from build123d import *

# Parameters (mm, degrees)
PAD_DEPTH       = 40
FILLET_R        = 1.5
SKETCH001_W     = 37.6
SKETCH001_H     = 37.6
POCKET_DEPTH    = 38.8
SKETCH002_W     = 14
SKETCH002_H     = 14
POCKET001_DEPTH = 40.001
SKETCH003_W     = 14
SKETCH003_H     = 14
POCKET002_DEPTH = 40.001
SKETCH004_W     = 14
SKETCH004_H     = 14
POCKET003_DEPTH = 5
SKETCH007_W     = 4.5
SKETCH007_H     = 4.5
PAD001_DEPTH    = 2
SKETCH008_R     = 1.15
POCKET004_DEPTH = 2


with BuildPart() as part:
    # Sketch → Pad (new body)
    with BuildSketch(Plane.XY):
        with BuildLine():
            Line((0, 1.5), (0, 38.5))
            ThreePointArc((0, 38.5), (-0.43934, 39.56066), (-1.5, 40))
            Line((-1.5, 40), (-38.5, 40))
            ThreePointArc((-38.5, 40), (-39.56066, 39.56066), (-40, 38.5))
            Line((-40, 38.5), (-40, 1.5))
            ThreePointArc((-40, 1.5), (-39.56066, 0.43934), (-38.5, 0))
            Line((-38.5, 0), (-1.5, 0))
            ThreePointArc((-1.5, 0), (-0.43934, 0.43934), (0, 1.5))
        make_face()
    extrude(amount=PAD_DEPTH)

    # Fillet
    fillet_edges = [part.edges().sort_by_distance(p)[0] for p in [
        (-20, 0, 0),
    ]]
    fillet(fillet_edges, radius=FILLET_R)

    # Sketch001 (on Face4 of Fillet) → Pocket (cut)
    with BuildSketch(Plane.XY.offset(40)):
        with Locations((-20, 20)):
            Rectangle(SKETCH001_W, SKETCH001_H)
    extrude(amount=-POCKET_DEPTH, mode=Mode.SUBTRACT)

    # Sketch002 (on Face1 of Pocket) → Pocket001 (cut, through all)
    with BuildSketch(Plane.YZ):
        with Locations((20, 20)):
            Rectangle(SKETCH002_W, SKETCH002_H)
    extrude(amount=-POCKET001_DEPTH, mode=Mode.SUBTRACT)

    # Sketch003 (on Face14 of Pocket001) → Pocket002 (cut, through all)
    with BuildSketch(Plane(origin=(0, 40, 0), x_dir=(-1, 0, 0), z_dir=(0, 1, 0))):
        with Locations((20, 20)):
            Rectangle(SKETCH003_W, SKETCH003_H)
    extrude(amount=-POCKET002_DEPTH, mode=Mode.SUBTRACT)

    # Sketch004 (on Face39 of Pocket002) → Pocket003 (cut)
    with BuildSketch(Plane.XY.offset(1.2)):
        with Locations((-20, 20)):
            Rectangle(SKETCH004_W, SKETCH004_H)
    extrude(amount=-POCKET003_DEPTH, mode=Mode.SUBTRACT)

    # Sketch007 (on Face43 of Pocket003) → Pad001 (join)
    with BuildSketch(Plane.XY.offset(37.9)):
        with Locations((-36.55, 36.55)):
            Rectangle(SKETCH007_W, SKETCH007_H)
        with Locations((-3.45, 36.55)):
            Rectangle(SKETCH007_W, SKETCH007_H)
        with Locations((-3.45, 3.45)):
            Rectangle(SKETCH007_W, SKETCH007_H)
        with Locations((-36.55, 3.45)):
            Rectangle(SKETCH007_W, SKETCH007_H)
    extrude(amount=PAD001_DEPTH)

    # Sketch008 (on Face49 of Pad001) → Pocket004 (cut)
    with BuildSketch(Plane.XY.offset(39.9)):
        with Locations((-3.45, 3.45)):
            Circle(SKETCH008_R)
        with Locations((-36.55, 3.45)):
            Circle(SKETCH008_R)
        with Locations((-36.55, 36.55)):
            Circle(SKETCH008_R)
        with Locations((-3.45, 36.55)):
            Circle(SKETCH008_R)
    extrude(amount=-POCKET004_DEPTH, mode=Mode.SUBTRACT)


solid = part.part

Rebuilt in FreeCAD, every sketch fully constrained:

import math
import FreeCAD as App
import Part
import Sketcher

V = App.Vector
Q = App.Units.Quantity


def edges_at(feature, points):
    """Names of the edges that pass closest to the given points."""
    edges = feature.Shape.Edges
    near = lambda p: min(range(len(edges)), key=lambda i: edges[i].distToShape(Part.Vertex(*p))[0])
    return sorted({f"Edge{near(p) + 1}" for p in points})


def add_polygon(sketch, points):
    """Adds a closed chain of lines whose ends are joined by coincident constraints."""
    first, n = sketch.GeometryCount, len(points)
    for a, b in zip(points, points[1:] + points[:1]):
        sketch.addGeometry(Part.LineSegment(App.Vector(*a, 0), App.Vector(*b, 0)), False)
    for i in range(n):
        sketch.addConstraint(Sketcher.Constraint("Coincident", first + i, 2, first + (i + 1) % n, 1))

doc = App.newDocument("Part")
body = doc.addObject("PartDesign::Body", "Body")

# Sketch on XY plane
sketch1 = body.newObject("Sketcher::SketchObject", "Sketch")
sketch1.AttachmentSupport = (doc.getObject("XY_Plane"), [""])
sketch1.MapMode = "FlatFace"
sketch1.addGeometry(Part.LineSegment(V(0, 1.5, 0), V(0, 38.5, 0)), False)
sketch1.addGeometry(Part.ArcOfCircle(Part.Circle(V(-1.5, 38.5, 0), V(0, 0, 1), 1.5), math.radians(0), math.radians(90)), False)
sketch1.addGeometry(Part.LineSegment(V(-1.5, 40, 0), V(-38.5, 40, 0)), False)
sketch1.addGeometry(Part.ArcOfCircle(Part.Circle(V(-38.5, 38.5, 0), V(0, 0, 1), 1.5), math.radians(90), math.radians(180)), False)
sketch1.addGeometry(Part.LineSegment(V(-40, 38.5, 0), V(-40, 1.5, 0)), False)
sketch1.addGeometry(Part.ArcOfCircle(Part.Circle(V(-38.5, 1.5, 0), V(0, 0, 1), 1.5), math.radians(-180), math.radians(-90)), False)
sketch1.addGeometry(Part.LineSegment(V(-38.5, 0, 0), V(-1.5, 0, 0)), False)
sketch1.addGeometry(Part.ArcOfCircle(Part.Circle(V(-1.5, 1.5, 0), V(0, 0, 1), 1.5), math.radians(-90), math.radians(0)), False)
sketch1.addConstraint(Sketcher.Constraint("Tangent", 0, 2, 1, 1))
sketch1.addConstraint(Sketcher.Constraint("Tangent", 1, 2, 2, 1))
sketch1.addConstraint(Sketcher.Constraint("Tangent", 2, 2, 3, 1))
sketch1.addConstraint(Sketcher.Constraint("Tangent", 3, 2, 4, 1))
sketch1.addConstraint(Sketcher.Constraint("Tangent", 4, 2, 5, 1))
sketch1.addConstraint(Sketcher.Constraint("Tangent", 5, 2, 6, 1))
sketch1.addConstraint(Sketcher.Constraint("Tangent", 6, 2, 7, 1))
sketch1.addConstraint(Sketcher.Constraint("Tangent", 7, 2, 0, 1))
sketch1.addConstraint(Sketcher.Constraint("Vertical", 0))
sketch1.addConstraint(Sketcher.Constraint("Horizontal", 2))
sketch1.addConstraint(Sketcher.Constraint("Vertical", 4))
sketch1.addConstraint(Sketcher.Constraint("Horizontal", 6))
sketch1.addConstraint(Sketcher.Constraint("Equal", 1, 3))
sketch1.addConstraint(Sketcher.Constraint("Equal", 3, 5))
sketch1.addConstraint(Sketcher.Constraint("Equal", 5, 7))
sketch1.addConstraint(Sketcher.Constraint("PointOnObject", 0, 2, -2))
sketch1.addConstraint(Sketcher.Constraint("PointOnObject", 5, 2, -1))
sketch1.addConstraint(Sketcher.Constraint("Equal", 6, 0))
sketch1.addConstraint(Sketcher.Constraint("Radius", 1, Q("1.500001 mm")))
sketch1.addConstraint(Sketcher.Constraint("DistanceX", 2, 2, 2, 1, Q("37 mm")))
pad1 = body.newObject("PartDesign::Pad", "Pad")
pad1.Profile = sketch1
pad1.Length = 40
doc.recompute()

fillet = body.newObject("PartDesign::Fillet", "Fillet")
fillet.Base = (pad1, edges_at(pad1, [(-20, 0, 0)]))
fillet.Radius = 1.5

# Sketch on XY plane
sketch2 = body.newObject("Sketcher::SketchObject", "Sketch001")
sketch2.AttachmentSupport = (doc.getObject("XY_Plane"), [""])
sketch2.MapMode = "FlatFace"
sketch2.AttachmentOffset = App.Placement(V(0, 0, 40), App.Rotation())
add_polygon(sketch2, [(-39, 39), (-39, 1), (-1, 1), (-1, 39)])  # lines 0-3
sketch2.addConstraint(Sketcher.Constraint("Vertical", 0))
sketch2.addConstraint(Sketcher.Constraint("Horizontal", 1))
sketch2.addConstraint(Sketcher.Constraint("Vertical", 2))
sketch2.addConstraint(Sketcher.Constraint("Horizontal", 3))
sketch2.addConstraint(Sketcher.Constraint("Equal", 3, 0))
sketch2.addConstraint(Sketcher.Constraint("DistanceX", 1, 1, 1, 2, Q("37.6 mm")))
sketch2.addConstraint(Sketcher.Constraint("DistanceX", 0, 2, -1, 1, Q("38.8 mm")))
sketch2.addConstraint(Sketcher.Constraint("DistanceY", -1, 1, 0, 2, Q("1.2 mm")))
pocket1 = body.newObject("PartDesign::Pocket", "Pocket")
pocket1.Profile = sketch2
pocket1.Length = 38.8

# Sketch on YZ plane
sketch3 = body.newObject("Sketcher::SketchObject", "Sketch002")
sketch3.AttachmentSupport = (doc.getObject("YZ_Plane"), [""])
sketch3.MapMode = "FlatFace"
add_polygon(sketch3, [(13, 27), (13, 13), (27, 13), (27, 27)])  # lines 0-3
sketch3.addConstraint(Sketcher.Constraint("Vertical", 0))
sketch3.addConstraint(Sketcher.Constraint("Horizontal", 1))
sketch3.addConstraint(Sketcher.Constraint("Vertical", 2))
sketch3.addConstraint(Sketcher.Constraint("Horizontal", 3))
sketch3.addConstraint(Sketcher.Constraint("Equal", 3, 0))
sketch3.addConstraint(Sketcher.Constraint("DistanceX", 1, 1, 1, 2, Q("14 mm")))
sketch3.addConstraint(Sketcher.Constraint("DistanceX", -1, 1, 0, 2, Q("13 mm")))
sketch3.addConstraint(Sketcher.Constraint("DistanceY", -1, 1, 0, 2, Q("13 mm")))
pocket2 = body.newObject("PartDesign::Pocket", "Pocket001")
pocket2.Profile = sketch3
pocket2.Type = "ThroughAll"

# Sketch on XZ plane
sketch4 = body.newObject("Sketcher::SketchObject", "Sketch003")
sketch4.AttachmentSupport = (doc.getObject("XZ_Plane"), [""])
sketch4.MapMode = "FlatFace"
sketch4.AttachmentOffset = App.Placement(V(0, 0, -40), App.Rotation())
add_polygon(sketch4, [(-13, 27), (-13, 13), (-27, 13), (-27, 27)])  # lines 0-3
sketch4.addConstraint(Sketcher.Constraint("Vertical", 0))
sketch4.addConstraint(Sketcher.Constraint("Horizontal", 1))
sketch4.addConstraint(Sketcher.Constraint("Vertical", 2))
sketch4.addConstraint(Sketcher.Constraint("Horizontal", 3))
sketch4.addConstraint(Sketcher.Constraint("Equal", 3, 0))
sketch4.addConstraint(Sketcher.Constraint("DistanceX", 1, 2, 1, 1, Q("14 mm")))
sketch4.addConstraint(Sketcher.Constraint("DistanceX", 0, 2, -1, 1, Q("13 mm")))
sketch4.addConstraint(Sketcher.Constraint("DistanceY", -1, 1, 0, 2, Q("13 mm")))
pocket3 = body.newObject("PartDesign::Pocket", "Pocket002")
pocket3.Profile = sketch4
pocket3.Type = "ThroughAll"
pocket3.Reversed = True

# Sketch on XY plane
sketch5 = body.newObject("Sketcher::SketchObject", "Sketch004")
sketch5.AttachmentSupport = (doc.getObject("XY_Plane"), [""])
sketch5.MapMode = "FlatFace"
sketch5.AttachmentOffset = App.Placement(V(0, 0, 1.2), App.Rotation())
add_polygon(sketch5, [(-27, 27), (-27, 13), (-13, 13), (-13, 27)])  # lines 0-3
sketch5.addConstraint(Sketcher.Constraint("Vertical", 0))
sketch5.addConstraint(Sketcher.Constraint("Horizontal", 1))
sketch5.addConstraint(Sketcher.Constraint("Vertical", 2))
sketch5.addConstraint(Sketcher.Constraint("Horizontal", 3))
sketch5.addConstraint(Sketcher.Constraint("Equal", 3, 0))
sketch5.addConstraint(Sketcher.Constraint("DistanceX", 1, 1, 1, 2, Q("14 mm")))
sketch5.addConstraint(Sketcher.Constraint("DistanceX", 0, 2, -1, 1, Q("27 mm")))
sketch5.addConstraint(Sketcher.Constraint("DistanceY", -1, 1, 0, 2, Q("13 mm")))
pocket4 = body.newObject("PartDesign::Pocket", "Pocket003")
pocket4.Profile = sketch5
pocket4.Length = 5

# Sketch on XY plane
sketch6 = body.newObject("Sketcher::SketchObject", "Sketch005")
sketch6.AttachmentSupport = (doc.getObject("XY_Plane"), [""])
sketch6.MapMode = "FlatFace"
sketch6.AttachmentOffset = App.Placement(V(0, 0, 37.9), App.Rotation())
add_polygon(sketch6, [(-38.8, 38.8), (-38.8, 34.3), (-34.3, 34.3), (-34.3, 38.8)])  # lines 0-3
add_polygon(sketch6, [(-5.7, 38.8), (-5.7, 34.3), (-1.2, 34.3), (-1.2, 38.8)])  # lines 4-7
add_polygon(sketch6, [(-5.7, 5.7), (-5.7, 1.2), (-1.2, 1.2), (-1.2, 5.7)])  # lines 8-11
add_polygon(sketch6, [(-38.8, 5.7), (-38.8, 1.2), (-34.3, 1.2), (-34.3, 5.7)])  # lines 12-15
sketch6.addConstraint(Sketcher.Constraint("Vertical", 0))
sketch6.addConstraint(Sketcher.Constraint("Horizontal", 1))
sketch6.addConstraint(Sketcher.Constraint("Vertical", 2))
sketch6.addConstraint(Sketcher.Constraint("Horizontal", 3))
sketch6.addConstraint(Sketcher.Constraint("Vertical", 4))
sketch6.addConstraint(Sketcher.Constraint("Horizontal", 5))
sketch6.addConstraint(Sketcher.Constraint("Vertical", 6))
sketch6.addConstraint(Sketcher.Constraint("Horizontal", 7))
sketch6.addConstraint(Sketcher.Constraint("Vertical", 8))
sketch6.addConstraint(Sketcher.Constraint("Horizontal", 9))
sketch6.addConstraint(Sketcher.Constraint("Vertical", 10))
sketch6.addConstraint(Sketcher.Constraint("Horizontal", 11))
sketch6.addConstraint(Sketcher.Constraint("Vertical", 12))
sketch6.addConstraint(Sketcher.Constraint("Horizontal", 13))
sketch6.addConstraint(Sketcher.Constraint("Vertical", 14))
sketch6.addConstraint(Sketcher.Constraint("Horizontal", 15))
sketch6.addConstraint(Sketcher.Constraint("Horizontal", 1, 2, 4, 2))
sketch6.addConstraint(Sketcher.Constraint("Horizontal", 3, 2, 6, 2))
sketch6.addConstraint(Sketcher.Constraint("Horizontal", 9, 2, 12, 2))
sketch6.addConstraint(Sketcher.Constraint("Horizontal", 11, 2, 14, 2))
sketch6.addConstraint(Sketcher.Constraint("Vertical", 7, 2, 8, 2))
sketch6.addConstraint(Sketcher.Constraint("Vertical", 6, 2, 9, 2))
sketch6.addConstraint(Sketcher.Constraint("Vertical", 3, 2, 12, 2))
sketch6.addConstraint(Sketcher.Constraint("Vertical", 2, 2, 13, 2))
sketch6.addConstraint(Sketcher.Constraint("Equal", 3, 5))
sketch6.addConstraint(Sketcher.Constraint("Equal", 15, 0))
sketch6.addConstraint(Sketcher.Constraint("Equal", 6, 8))
sketch6.addConstraint(Sketcher.Constraint("DistanceX", 1, 1, 1, 2, Q("4.5 mm")))
sketch6.addConstraint(Sketcher.Constraint("DistanceX", 0, 2, -1, 1, Q("38.8 mm")))
sketch6.addConstraint(Sketcher.Constraint("DistanceY", -1, 1, 0, 2, Q("34.3 mm")))
sketch6.addConstraint(Sketcher.Constraint("DistanceX", 4, 2, -1, 1, Q("5.7 mm")))
sketch6.addConstraint(Sketcher.Constraint("DistanceY", -1, 1, 8, 2, Q("1.2 mm")))
pad2 = body.newObject("PartDesign::Pad", "Pad001")
pad2.Profile = sketch6
pad2.Length = 2

# Sketch on XY plane
sketch7 = body.newObject("Sketcher::SketchObject", "Sketch006")
sketch7.AttachmentSupport = (doc.getObject("XY_Plane"), [""])
sketch7.MapMode = "FlatFace"
sketch7.AttachmentOffset = App.Placement(V(0, 0, 39.9), App.Rotation())
sketch7.addGeometry(Part.Circle(V(-3.5, 3.5, 0), V(0, 0, 1), 1.1), False)
sketch7.addGeometry(Part.Circle(V(-36.5, 3.5, 0), V(0, 0, 1), 1.1), False)
sketch7.addGeometry(Part.Circle(V(-36.5, 36.5, 0), V(0, 0, 1), 1.1), False)
sketch7.addGeometry(Part.Circle(V(-3.5, 36.5, 0), V(0, 0, 1), 1.1), False)
sketch7.addConstraint(Sketcher.Constraint("Equal", 0, 1))
sketch7.addConstraint(Sketcher.Constraint("Equal", 1, 2))
sketch7.addConstraint(Sketcher.Constraint("Equal", 2, 3))
sketch7.addConstraint(Sketcher.Constraint("Horizontal", 0, 3, 1, 3))
sketch7.addConstraint(Sketcher.Constraint("Horizontal", 2, 3, 3, 3))
sketch7.addConstraint(Sketcher.Constraint("Vertical", 1, 3, 2, 3))
sketch7.addConstraint(Sketcher.Constraint("Vertical", 0, 3, 3, 3))
sketch7.addConstraint(Sketcher.Constraint("Diameter", 0, Q("2.3 mm")))
sketch7.addConstraint(Sketcher.Constraint("DistanceX", 1, 3, 0, 3, Q("33.1 mm")))
sketch7.addConstraint(Sketcher.Constraint("DistanceY", 1, 3, 2, 3, Q("33.1 mm")))
sketch7.addConstraint(Sketcher.Constraint("DistanceX", 0, 3, -1, 1, Q("3.45 mm")))
sketch7.addConstraint(Sketcher.Constraint("DistanceY", -1, 1, 0, 3, Q("3.45 mm")))
pocket5 = body.newObject("PartDesign::Pocket", "Pocket004")
pocket5.Profile = sketch7
pocket5.Length = 2

doc.recompute()
